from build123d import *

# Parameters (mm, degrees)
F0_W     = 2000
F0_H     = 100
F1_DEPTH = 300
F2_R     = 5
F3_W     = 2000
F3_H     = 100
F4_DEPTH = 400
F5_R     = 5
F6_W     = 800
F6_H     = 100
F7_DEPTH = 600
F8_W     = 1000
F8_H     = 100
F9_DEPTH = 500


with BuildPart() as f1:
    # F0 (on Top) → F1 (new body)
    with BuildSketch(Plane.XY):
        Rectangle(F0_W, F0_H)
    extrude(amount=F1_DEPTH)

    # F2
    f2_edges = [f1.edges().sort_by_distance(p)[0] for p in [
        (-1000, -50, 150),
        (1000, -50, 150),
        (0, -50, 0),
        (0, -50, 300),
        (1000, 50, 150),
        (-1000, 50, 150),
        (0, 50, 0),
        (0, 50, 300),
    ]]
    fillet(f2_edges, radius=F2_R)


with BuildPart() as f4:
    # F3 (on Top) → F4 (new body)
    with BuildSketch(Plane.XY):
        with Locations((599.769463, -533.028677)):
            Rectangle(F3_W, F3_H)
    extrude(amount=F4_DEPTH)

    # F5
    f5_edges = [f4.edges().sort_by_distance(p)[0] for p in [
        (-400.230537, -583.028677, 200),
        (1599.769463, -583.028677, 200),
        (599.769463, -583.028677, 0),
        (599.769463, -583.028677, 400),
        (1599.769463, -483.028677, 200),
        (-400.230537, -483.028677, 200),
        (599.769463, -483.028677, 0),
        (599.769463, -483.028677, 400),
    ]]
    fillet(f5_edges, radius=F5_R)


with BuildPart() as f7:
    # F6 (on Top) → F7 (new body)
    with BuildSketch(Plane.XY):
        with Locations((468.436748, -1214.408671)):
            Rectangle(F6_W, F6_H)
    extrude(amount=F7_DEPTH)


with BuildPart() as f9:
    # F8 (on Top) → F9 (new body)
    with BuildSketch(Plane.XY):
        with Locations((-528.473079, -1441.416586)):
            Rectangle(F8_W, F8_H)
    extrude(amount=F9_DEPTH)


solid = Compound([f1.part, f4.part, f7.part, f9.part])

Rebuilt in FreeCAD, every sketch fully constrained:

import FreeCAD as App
import Part
import Sketcher
from FreeCAD import Vector


def edges_at(feature, points):
    """Names of the edges that pass closest to the given points."""
    edges = feature.Shape.Edges
    near = lambda p: min(range(len(edges)), key=lambda i: edges[i].distToShape(Part.Vertex(*p))[0])
    return sorted({f"Edge{near(p) + 1}" for p in points})

doc = App.newDocument("Part")
body = doc.addObject("PartDesign::Body", "Body")

sketch1 = doc.addObject("Sketcher::SketchObject", "Sketch")
body.addObject(sketch1)
sketch1.AttachmentSupport = (doc.XY_Plane, [""])
sketch1.MapMode = "FlatFace"
sketch1.addGeometry([
    Part.LineSegment(Vector(-1000, 50, 0), Vector(-1000, -50, 0)),
    Part.LineSegment(Vector(-1000, -50, 0), Vector(1000, -50, 0)),
    Part.LineSegment(Vector(1000, -50, 0), Vector(1000, 50, 0)),
    Part.LineSegment(Vector(1000, 50, 0), Vector(-1000, 50, 0)),
], False)
sketch1.addConstraint([
    Sketcher.Constraint("Coincident", 0, 2, 1, 1),
    Sketcher.Constraint("Coincident", 1, 2, 2, 1),
    Sketcher.Constraint("Coincident", 2, 2, 3, 1),
    Sketcher.Constraint("Coincident", 3, 2, 0, 1),
    Sketcher.Constraint("Vertical", 0),
    Sketcher.Constraint("Horizontal", 1),
    Sketcher.Constraint("Vertical", 2),
    Sketcher.Constraint("Horizontal", 3),
    Sketcher.Constraint("Symmetric", 0, 2, 2, 2, -1, 1),
    Sketcher.Constraint("DistanceX", 1, 1, 1, 2, 2000.0),
    Sketcher.Constraint("DistanceY", 0, 2, 0, 1, 100.0),
])
pad1 = doc.addObject("PartDesign::Pad", "Pad")
body.addObject(pad1)
pad1.Profile = sketch1
pad1.Length = 300
doc.recompute()

fillet = doc.addObject("PartDesign::Fillet", "Fillet")
body.addObject(fillet)
fillet.Base = (pad1, edges_at(pad1, [
    (-1000, -50, 150),
    (1000, -50, 150),
    (0, -50, 0),
    (0, -50, 300),
    (1000, 50, 150),
    (-1000, 50, 150),
    (0, 50, 0),
    (0, 50, 300),
]))
fillet.Radius = 5
body2 = doc.addObject("PartDesign::Body", "Body001")

sketch2 = doc.addObject("Sketcher::SketchObject", "Sketch001")
body2.addObject(sketch2)
sketch2.AttachmentSupport = (doc.getObject("XY_Plane001"), [""])
sketch2.MapMode = "FlatFace"
sketch2.addGeometry([
    Part.LineSegment(Vector(-400, -483, 0), Vector(-400, -583, 0)),
    Part.LineSegment(Vector(-400, -583, 0), Vector(1600, -583, 0)),
    Part.LineSegment(Vector(1600, -583, 0), Vector(1600, -483, 0)),
    Part.LineSegment(Vector(1600, -483, 0), Vector(-400, -483, 0)),
], False)
sketch2.addConstraint([
    Sketcher.Constraint("Coincident", 0, 2, 1, 1),
    Sketcher.Constraint("Coincident", 1, 2, 2, 1),
    Sketcher.Constraint("Coincident", 2, 2, 3, 1),
    Sketcher.Constraint("Coincident", 3, 2, 0, 1),
    Sketcher.Constraint("Vertical", 0),
    Sketcher.Constraint("Horizontal", 1),
    Sketcher.Constraint("Vertical", 2),
    Sketcher.Constraint("Horizontal", 3),
    Sketcher.Constraint("DistanceX", 1, 1, 1, 2, 2000.0),
    Sketcher.Constraint("DistanceY", 0, 2, 0, 1, 100.0),
    Sketcher.Constraint("DistanceX", 0, 2, -1, 1, 400.230537),
    Sketcher.Constraint("DistanceY", 0, 2, -1, 1, 583.028677),
])
pad2 = doc.addObject("PartDesign::Pad", "Pad001")
body2.addObject(pad2)
pad2.Profile = sketch2
pad2.Length = 400
doc.recompute()

fillet2 = doc.addObject("PartDesign::Fillet", "Fillet001")
body2.addObject(fillet2)
fillet2.Base = (pad2, edges_at(pad2, [
    (-400.231, -583.029, 200),
    (1599.769, -583.029, 200),
    (599.769, -583.029, 0),
    (599.769, -583.029, 400),
    (1599.769, -483.029, 200),
    (-400.231, -483.029, 200),
    (599.769, -483.029, 0),
    (599.769, -483.029, 400),
]))
fillet2.Radius = 5
body3 = doc.addObject("PartDesign::Body", "Body002")

sketch3 = doc.addObject("Sketcher::SketchObject", "Sketch002")
body3.addObject(sketch3)
sketch3.AttachmentSupport = (doc.getObject("XY_Plane002"), [""])
sketch3.MapMode = "FlatFace"
sketch3.addGeometry([
    Part.LineSegment(Vector(68, -1164, 0), Vector(68, -1264, 0)),
    Part.LineSegment(Vector(68, -1264, 0), Vector(868, -1264, 0)),
    Part.LineSegment(Vector(868, -1264, 0), Vector(868, -1164, 0)),
    Part.LineSegment(Vector(868, -1164, 0), Vector(68, -1164, 0)),
], False)
sketch3.addConstraint([
    Sketcher.Constraint("Coincident", 0, 2, 1, 1),
    Sketcher.Constraint("Coincident", 1, 2, 2, 1),
    Sketcher.Constraint("Coincident", 2, 2, 3, 1),
    Sketcher.Constraint("Coincident", 3, 2, 0, 1),
    Sketcher.Constraint("Vertical", 0),
    Sketcher.Constraint("Horizontal", 1),
    Sketcher.Constraint("Vertical", 2),
    Sketcher.Constraint("Horizontal", 3),
    Sketcher.Constraint("DistanceX", 1, 1, 1, 2, 800.0),
    Sketcher.Constraint("DistanceY", 0, 2, 0, 1, 100.0),
    Sketcher.Constraint("DistanceY", 0, 2, -1, 1, 1264.408671),
    Sketcher.Constraint("DistanceX", -1, 1, 1, 2, 868.436748),
])
pad3 = doc.addObject("PartDesign::Pad", "Pad002")
body3.addObject(pad3)
pad3.Profile = sketch3
pad3.Length = 600
body4 = doc.addObject("PartDesign::Body", "Body003")

sketch4 = doc.addObject("Sketcher::SketchObject", "Sketch003")
body4.addObject(sketch4)
sketch4.AttachmentSupport = (doc.getObject("XY_Plane003"), [""])
sketch4.MapMode = "FlatFace"
sketch4.addGeometry([
    Part.LineSegment(Vector(-1028, -1391, 0), Vector(-1028, -1491, 0)),
    Part.LineSegment(Vector(-1028, -1491, 0), Vector(-28, -1491, 0)),
    Part.LineSegment(Vector(-28, -1491, 0), Vector(-28, -1391, 0)),
    Part.LineSegment(Vector(-28, -1391, 0), Vector(-1028, -1391, 0)),
], False)
sketch4.addConstraint([
    Sketcher.Constraint("Coincident", 0, 2, 1, 1),
    Sketcher.Constraint("Coincident", 1, 2, 2, 1),
    Sketcher.Constraint("Coincident", 2, 2, 3, 1),
    Sketcher.Constraint("Coincident", 3, 2, 0, 1),
    Sketcher.Constraint("Vertical", 0),
    Sketcher.Constraint("Horizontal", 1),
    Sketcher.Constraint("Vertical", 2),
    Sketcher.Constraint("Horizontal", 3),
    Sketcher.Constraint("DistanceX", 1, 1, 1, 2, 1000.0),
    Sketcher.Constraint("DistanceY", 0, 2, 0, 1, 100.0),
    Sketcher.Constraint("DistanceX", 0, 2, -1, 1, 1028.473079),
    Sketcher.Constraint("DistanceY", 0, 2, -1, 1, 1491.416586),
])
pad4 = doc.addObject("PartDesign::Pad", "Pad003")
body4.addObject(pad4)
pad4.Profile = sketch4
pad4.Length = 500

doc.recompute()
